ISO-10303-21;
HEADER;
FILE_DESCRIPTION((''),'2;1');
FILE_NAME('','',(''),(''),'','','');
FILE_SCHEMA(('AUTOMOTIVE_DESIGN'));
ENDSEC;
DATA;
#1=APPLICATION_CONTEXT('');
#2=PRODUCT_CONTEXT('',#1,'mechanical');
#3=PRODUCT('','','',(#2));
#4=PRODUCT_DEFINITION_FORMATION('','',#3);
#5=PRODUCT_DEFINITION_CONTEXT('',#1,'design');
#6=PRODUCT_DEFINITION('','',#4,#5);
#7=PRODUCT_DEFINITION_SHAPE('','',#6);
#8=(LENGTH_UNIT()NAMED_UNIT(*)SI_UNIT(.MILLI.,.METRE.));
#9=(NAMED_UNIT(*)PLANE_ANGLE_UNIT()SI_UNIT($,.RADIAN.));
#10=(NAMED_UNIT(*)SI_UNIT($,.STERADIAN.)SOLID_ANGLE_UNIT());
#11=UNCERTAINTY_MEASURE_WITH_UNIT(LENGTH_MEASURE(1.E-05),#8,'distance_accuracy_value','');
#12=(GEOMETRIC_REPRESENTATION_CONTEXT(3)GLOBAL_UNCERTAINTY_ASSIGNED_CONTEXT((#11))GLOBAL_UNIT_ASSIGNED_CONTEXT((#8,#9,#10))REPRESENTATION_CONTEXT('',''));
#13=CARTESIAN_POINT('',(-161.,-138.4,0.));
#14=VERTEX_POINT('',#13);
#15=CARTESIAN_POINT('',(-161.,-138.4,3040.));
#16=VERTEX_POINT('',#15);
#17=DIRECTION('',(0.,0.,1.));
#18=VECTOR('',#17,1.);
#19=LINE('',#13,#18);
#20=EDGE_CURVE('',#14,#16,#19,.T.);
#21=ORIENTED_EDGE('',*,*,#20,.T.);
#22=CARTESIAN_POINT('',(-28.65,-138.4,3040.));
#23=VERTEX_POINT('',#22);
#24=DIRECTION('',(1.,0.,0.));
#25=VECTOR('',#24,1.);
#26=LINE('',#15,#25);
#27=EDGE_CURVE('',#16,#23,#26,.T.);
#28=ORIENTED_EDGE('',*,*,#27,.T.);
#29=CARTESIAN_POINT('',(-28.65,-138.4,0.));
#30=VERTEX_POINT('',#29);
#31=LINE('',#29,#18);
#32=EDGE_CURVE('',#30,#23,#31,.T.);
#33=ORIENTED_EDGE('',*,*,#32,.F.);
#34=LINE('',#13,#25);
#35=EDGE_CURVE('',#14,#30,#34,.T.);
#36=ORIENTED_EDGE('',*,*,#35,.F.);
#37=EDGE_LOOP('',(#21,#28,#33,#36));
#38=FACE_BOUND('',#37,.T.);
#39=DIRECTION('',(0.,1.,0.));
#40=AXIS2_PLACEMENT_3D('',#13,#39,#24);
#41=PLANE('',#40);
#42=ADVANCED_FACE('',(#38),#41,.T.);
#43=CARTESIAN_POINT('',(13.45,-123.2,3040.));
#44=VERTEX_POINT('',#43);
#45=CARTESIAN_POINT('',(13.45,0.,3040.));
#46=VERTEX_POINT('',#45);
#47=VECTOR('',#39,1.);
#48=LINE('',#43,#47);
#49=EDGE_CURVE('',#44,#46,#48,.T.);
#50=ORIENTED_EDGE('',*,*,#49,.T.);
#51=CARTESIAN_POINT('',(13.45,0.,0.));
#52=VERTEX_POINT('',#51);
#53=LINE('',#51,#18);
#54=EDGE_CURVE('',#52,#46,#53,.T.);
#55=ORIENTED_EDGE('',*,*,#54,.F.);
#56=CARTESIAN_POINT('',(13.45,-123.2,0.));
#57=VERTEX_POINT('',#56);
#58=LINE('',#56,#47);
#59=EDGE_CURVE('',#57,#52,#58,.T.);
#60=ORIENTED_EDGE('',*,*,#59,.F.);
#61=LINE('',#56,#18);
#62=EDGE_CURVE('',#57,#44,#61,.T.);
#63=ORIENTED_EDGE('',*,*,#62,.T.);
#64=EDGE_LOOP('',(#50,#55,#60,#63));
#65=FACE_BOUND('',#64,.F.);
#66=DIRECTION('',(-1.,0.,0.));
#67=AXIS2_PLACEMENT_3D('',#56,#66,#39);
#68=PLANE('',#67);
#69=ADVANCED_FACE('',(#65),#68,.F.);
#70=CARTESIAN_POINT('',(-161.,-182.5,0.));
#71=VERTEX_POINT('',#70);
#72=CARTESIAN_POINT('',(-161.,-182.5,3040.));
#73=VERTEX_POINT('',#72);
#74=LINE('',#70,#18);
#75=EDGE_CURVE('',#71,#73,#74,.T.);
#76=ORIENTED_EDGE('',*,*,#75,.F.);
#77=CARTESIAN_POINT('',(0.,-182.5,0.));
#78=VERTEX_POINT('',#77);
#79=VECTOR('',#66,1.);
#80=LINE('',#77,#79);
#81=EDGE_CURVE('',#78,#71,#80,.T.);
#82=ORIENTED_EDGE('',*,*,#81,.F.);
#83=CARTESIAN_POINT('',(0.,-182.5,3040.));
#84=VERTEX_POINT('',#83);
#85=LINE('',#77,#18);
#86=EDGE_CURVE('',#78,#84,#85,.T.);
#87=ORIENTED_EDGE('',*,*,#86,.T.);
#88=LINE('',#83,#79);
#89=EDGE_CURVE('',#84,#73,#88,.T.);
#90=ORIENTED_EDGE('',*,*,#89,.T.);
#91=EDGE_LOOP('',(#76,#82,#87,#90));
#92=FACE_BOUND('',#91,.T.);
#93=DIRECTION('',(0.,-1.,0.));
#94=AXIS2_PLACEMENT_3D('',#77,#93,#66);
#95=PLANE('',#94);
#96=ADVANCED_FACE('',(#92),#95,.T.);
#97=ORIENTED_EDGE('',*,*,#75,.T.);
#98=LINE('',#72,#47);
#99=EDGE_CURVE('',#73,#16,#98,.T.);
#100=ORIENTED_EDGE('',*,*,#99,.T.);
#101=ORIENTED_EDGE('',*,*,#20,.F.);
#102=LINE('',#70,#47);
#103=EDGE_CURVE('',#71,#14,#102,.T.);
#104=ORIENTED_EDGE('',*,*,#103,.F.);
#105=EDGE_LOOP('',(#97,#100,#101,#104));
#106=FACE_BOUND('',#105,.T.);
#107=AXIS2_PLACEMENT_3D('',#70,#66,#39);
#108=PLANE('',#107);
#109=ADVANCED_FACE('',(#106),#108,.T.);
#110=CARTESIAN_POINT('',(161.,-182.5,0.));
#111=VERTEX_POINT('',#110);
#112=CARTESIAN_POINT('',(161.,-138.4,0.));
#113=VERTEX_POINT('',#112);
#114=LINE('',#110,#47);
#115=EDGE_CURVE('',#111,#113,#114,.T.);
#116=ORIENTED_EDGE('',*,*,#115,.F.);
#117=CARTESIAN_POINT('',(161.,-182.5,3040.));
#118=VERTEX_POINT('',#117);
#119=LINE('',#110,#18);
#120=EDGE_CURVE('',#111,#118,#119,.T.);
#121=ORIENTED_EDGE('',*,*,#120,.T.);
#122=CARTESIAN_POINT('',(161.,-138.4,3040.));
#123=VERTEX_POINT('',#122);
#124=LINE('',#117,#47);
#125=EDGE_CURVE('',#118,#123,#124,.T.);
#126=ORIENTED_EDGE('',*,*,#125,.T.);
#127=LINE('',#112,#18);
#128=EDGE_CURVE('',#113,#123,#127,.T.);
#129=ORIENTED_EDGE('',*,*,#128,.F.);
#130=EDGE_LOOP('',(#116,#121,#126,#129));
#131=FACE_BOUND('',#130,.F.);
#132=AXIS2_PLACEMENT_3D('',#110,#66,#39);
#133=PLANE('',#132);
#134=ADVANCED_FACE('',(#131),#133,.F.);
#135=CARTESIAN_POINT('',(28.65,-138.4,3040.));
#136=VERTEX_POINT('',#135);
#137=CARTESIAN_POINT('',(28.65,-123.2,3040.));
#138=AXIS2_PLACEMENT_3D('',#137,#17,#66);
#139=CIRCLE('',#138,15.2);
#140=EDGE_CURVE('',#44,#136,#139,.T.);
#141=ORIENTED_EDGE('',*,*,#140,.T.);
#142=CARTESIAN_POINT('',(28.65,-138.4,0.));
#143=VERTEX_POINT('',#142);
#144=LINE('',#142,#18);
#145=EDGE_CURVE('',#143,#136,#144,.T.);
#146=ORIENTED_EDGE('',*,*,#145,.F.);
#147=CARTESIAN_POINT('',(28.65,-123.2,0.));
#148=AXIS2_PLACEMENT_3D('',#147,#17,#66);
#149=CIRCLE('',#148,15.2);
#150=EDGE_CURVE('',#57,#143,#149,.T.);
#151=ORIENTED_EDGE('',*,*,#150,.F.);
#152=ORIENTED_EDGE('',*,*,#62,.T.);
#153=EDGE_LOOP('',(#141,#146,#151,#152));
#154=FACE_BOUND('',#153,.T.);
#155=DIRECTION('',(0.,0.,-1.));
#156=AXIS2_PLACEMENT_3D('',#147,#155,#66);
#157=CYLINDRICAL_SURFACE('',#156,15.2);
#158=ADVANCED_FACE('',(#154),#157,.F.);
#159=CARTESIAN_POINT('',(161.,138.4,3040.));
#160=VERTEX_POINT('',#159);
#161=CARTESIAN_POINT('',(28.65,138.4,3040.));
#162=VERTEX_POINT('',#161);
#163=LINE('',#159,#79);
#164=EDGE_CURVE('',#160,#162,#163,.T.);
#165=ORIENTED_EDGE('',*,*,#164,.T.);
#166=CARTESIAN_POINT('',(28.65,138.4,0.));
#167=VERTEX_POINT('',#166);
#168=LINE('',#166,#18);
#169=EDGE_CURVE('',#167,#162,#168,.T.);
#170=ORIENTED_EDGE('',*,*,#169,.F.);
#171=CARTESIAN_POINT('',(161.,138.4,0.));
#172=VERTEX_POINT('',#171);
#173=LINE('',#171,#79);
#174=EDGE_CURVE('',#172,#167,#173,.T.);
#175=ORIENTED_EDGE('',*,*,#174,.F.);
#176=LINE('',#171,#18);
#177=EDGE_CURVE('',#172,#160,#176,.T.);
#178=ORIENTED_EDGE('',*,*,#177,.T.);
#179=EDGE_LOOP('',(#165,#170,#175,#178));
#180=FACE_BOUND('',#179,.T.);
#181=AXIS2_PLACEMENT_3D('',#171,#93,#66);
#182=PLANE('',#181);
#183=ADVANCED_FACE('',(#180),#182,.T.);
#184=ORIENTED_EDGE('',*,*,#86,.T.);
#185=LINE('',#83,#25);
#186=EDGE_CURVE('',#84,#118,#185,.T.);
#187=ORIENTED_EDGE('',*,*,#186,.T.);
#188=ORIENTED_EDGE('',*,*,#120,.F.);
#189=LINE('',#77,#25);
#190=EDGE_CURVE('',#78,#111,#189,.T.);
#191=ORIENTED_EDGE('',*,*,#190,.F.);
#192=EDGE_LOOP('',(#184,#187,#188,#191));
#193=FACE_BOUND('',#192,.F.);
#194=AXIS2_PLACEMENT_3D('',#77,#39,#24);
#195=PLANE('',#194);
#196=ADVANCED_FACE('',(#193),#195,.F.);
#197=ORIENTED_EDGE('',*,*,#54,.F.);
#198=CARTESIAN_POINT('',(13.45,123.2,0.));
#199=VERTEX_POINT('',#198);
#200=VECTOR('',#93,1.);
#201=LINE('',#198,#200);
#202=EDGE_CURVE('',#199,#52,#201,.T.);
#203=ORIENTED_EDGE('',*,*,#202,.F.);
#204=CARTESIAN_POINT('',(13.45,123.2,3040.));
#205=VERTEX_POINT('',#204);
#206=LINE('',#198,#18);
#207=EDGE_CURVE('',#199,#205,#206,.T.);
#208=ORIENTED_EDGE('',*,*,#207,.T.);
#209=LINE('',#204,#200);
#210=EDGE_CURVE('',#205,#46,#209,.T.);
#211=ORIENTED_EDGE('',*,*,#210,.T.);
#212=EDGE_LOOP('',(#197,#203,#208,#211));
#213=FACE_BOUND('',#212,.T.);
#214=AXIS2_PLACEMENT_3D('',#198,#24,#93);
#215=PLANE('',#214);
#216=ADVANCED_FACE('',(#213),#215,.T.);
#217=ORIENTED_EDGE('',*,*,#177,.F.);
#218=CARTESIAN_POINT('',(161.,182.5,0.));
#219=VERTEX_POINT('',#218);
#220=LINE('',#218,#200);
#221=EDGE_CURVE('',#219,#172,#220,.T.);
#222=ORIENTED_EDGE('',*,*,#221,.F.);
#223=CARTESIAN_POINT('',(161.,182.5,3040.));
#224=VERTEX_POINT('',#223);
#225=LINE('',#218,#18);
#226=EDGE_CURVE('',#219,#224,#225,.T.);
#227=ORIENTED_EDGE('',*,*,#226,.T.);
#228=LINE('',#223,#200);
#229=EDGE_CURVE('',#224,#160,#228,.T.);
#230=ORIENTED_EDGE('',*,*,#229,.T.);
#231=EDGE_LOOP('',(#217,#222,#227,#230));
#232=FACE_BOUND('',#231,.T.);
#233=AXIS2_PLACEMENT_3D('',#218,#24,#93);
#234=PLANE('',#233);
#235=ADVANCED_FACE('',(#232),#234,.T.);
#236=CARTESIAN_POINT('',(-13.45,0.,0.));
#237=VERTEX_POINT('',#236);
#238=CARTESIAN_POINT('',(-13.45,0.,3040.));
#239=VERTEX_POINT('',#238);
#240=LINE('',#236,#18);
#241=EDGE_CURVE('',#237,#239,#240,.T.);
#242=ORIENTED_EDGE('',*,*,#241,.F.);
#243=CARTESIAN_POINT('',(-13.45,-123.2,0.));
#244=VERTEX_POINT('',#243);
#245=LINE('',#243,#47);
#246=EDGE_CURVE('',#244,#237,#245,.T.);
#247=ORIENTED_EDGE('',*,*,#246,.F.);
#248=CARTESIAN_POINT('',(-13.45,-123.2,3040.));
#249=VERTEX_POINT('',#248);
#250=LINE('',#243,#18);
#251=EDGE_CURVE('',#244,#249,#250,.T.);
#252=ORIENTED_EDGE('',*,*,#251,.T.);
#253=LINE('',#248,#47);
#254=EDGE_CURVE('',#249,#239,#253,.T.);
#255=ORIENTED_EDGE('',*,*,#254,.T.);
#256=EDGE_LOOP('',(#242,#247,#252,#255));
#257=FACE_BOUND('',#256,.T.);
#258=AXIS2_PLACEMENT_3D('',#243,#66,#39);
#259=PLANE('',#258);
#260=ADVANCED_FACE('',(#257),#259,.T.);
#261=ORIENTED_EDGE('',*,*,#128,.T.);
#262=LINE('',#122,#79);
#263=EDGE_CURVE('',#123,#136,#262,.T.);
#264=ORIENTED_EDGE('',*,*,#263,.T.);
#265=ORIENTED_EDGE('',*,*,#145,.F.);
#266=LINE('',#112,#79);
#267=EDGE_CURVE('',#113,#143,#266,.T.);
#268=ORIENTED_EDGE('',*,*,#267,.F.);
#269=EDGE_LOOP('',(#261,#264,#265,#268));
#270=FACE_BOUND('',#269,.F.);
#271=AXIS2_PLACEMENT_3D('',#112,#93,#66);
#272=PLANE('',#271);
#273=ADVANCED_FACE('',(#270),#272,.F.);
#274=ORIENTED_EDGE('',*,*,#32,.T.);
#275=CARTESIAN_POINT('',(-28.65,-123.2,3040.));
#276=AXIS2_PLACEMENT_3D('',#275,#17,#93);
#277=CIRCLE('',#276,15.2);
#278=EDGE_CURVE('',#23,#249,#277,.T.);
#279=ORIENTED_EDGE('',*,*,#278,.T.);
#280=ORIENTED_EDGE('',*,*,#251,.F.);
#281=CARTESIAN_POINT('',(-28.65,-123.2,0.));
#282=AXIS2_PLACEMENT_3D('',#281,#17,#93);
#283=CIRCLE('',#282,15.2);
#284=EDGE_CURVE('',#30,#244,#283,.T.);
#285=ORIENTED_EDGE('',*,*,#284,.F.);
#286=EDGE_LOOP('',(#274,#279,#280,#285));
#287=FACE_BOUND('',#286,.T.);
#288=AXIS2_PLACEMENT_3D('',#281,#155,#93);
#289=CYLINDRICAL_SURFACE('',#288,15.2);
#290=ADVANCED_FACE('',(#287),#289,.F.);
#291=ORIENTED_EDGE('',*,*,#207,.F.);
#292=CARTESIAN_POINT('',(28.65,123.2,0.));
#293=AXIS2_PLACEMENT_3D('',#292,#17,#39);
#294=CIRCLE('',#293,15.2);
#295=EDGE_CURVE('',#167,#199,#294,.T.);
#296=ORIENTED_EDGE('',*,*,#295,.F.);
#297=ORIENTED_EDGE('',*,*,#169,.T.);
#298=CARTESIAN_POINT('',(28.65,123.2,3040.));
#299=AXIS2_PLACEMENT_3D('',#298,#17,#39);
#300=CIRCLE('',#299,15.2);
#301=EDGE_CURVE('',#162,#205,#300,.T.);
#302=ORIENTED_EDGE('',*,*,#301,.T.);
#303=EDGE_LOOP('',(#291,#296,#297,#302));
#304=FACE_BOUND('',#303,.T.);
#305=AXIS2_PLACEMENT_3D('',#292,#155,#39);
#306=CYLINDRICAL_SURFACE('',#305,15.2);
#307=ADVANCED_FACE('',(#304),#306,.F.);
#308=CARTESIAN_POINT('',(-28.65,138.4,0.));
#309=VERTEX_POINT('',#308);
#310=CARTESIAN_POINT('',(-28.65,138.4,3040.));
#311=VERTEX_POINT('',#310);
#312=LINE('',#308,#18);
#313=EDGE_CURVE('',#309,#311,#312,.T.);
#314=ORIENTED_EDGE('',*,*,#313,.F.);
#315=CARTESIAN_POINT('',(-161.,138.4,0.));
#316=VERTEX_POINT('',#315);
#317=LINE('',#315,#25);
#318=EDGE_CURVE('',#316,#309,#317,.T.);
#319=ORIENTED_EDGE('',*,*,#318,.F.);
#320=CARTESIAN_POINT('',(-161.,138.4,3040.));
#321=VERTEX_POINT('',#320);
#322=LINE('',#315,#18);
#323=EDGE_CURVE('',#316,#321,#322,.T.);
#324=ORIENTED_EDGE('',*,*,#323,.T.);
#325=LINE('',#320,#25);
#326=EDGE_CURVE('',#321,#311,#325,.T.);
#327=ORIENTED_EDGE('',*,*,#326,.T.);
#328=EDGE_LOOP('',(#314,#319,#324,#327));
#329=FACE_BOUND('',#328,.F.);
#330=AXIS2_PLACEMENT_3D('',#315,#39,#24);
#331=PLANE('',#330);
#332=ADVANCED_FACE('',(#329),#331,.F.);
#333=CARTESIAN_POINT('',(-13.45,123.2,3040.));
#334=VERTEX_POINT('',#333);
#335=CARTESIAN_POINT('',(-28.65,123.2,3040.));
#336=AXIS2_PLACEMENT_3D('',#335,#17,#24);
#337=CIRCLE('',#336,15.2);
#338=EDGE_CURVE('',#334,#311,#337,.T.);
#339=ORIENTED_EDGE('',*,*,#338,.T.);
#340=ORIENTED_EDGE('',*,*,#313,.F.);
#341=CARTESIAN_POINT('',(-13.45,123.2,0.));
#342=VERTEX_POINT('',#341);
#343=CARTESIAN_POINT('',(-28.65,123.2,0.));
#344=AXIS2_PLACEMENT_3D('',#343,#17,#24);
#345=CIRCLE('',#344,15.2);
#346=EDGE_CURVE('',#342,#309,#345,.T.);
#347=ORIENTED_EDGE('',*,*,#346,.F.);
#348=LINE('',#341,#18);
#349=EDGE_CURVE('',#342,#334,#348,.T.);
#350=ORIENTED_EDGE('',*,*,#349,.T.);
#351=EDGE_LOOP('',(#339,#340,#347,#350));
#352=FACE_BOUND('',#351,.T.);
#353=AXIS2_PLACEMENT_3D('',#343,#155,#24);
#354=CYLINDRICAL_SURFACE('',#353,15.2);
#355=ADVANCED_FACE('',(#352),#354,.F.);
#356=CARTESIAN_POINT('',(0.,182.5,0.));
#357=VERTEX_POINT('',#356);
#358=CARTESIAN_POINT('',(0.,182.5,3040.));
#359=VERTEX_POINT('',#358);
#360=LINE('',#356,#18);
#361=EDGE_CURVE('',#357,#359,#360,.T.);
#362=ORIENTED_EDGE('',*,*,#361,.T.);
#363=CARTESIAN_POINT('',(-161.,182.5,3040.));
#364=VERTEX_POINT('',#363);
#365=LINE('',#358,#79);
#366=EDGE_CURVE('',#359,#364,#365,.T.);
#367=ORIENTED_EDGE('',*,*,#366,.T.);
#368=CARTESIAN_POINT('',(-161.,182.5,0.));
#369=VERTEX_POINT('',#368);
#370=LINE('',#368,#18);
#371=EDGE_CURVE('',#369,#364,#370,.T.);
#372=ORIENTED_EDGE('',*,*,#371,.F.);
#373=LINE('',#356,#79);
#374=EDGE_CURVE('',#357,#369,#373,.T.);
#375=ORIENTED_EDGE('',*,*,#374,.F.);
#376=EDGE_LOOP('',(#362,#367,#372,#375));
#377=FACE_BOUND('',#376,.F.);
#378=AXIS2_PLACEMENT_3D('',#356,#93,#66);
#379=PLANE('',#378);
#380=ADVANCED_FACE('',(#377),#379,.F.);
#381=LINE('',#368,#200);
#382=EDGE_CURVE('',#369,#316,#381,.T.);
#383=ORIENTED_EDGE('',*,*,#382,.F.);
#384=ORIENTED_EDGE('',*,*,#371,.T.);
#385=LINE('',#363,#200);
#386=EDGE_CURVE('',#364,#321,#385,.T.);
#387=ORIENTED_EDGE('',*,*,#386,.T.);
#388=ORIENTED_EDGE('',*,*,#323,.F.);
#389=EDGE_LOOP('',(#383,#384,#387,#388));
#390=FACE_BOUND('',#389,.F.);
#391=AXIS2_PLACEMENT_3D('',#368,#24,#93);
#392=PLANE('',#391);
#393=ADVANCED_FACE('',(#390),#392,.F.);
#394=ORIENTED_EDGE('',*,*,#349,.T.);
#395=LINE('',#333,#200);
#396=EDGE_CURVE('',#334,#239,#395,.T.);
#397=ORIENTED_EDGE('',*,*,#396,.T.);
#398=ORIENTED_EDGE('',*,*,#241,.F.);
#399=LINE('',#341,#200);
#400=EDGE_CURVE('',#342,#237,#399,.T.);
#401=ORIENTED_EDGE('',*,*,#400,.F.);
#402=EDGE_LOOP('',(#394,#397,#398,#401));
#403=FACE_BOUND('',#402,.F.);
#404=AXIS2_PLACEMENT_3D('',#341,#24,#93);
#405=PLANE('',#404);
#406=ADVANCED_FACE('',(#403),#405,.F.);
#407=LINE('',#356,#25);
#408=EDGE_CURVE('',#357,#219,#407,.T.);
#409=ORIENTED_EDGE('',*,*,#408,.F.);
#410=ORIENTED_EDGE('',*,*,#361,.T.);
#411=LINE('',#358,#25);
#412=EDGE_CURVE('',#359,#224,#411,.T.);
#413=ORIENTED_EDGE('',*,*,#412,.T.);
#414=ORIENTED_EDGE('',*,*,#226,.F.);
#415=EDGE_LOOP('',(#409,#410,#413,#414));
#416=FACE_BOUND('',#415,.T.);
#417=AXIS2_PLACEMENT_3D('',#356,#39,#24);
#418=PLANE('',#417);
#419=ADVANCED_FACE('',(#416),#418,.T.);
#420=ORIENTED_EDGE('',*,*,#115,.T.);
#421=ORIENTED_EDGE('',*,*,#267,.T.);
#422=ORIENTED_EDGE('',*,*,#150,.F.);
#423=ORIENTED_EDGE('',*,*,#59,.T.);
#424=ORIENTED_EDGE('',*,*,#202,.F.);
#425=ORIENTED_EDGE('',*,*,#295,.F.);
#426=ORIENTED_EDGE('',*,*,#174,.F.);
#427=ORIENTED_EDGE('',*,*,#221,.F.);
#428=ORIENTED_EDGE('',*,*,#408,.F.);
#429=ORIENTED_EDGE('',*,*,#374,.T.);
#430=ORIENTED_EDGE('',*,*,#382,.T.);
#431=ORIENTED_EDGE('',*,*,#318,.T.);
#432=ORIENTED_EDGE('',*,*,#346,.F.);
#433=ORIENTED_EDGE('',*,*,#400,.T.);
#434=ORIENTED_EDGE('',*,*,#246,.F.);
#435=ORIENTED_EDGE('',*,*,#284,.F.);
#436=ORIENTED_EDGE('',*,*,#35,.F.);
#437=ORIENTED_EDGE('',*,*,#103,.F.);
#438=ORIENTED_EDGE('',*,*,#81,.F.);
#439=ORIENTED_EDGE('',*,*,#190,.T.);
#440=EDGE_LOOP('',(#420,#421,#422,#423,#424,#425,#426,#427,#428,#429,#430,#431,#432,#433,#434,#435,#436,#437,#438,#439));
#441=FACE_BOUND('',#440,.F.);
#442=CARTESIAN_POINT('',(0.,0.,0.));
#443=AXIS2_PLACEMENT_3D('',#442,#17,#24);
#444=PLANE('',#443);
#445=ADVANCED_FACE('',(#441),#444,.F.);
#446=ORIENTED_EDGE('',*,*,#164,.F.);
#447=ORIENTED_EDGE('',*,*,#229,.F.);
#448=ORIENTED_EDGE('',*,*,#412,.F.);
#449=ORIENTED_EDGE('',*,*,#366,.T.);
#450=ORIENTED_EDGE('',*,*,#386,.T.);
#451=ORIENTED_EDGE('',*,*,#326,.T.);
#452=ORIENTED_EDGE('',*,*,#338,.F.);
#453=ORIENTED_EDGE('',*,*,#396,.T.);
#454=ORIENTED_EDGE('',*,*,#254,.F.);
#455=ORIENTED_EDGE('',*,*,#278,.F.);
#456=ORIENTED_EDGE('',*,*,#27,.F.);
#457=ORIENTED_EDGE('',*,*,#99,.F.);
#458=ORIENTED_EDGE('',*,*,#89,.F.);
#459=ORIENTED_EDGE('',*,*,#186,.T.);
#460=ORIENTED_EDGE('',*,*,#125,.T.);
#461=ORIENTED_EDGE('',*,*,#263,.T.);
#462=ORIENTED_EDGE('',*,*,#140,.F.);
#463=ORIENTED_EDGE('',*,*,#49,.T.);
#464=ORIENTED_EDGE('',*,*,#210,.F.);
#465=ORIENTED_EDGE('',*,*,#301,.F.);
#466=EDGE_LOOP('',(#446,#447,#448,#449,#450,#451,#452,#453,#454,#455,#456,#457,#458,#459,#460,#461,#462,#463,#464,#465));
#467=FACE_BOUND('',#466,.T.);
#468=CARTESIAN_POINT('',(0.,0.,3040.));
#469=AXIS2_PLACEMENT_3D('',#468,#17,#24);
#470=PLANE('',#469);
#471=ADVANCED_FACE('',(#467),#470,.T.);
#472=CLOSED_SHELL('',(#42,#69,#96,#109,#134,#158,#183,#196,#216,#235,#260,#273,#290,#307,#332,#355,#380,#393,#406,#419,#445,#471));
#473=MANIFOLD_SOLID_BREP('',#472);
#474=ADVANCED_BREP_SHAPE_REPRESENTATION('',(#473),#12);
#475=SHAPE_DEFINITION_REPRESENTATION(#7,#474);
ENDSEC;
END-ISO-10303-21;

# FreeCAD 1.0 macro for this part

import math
import FreeCAD as App
import Part
import Sketcher

V = App.Vector
Q = App.Units.Quantity

doc = App.newDocument("Part")
body = doc.addObject("PartDesign::Body", "Body")

# Sketch on XY plane
sketch1 = doc.addObject("Sketcher::SketchObject", "Sketch")
body.addObject(sketch1)
sketch1.AttachmentSupport = (doc.XY_Plane, [""])
sketch1.MapMode = "FlatFace"
sketch1.addGeometry([
    Part.LineSegment(V(-161, -138.4, 0), V(-161, -182.5, 0)),  # 0
    Part.LineSegment(V(-161, -182.5, 0), V(161, -182.5, 0)),  # 1
    Part.LineSegment(V(161, -182.5, 0), V(161, -138.4, 0)),  # 2
    Part.LineSegment(V(161, -138.4, 0), V(28.65, -138.4, 0)),  # 3
    Part.ArcOfCircle(Part.Circle(V(28.65, -123.2, 0), V(0, 0, 1), 15.2), math.radians(180), math.radians(270)),  # 4
    Part.LineSegment(V(13.45, -123.2, 0), V(13.45, 123.2, 0)),  # 5
    Part.ArcOfCircle(Part.Circle(V(28.65, 123.2, 0), V(0, 0, 1), 15.2), math.radians(90), math.radians(180)),  # 6
    Part.LineSegment(V(28.65, 138.4, 0), V(161, 138.4, 0)),  # 7
    Part.LineSegment(V(161, 138.4, 0), V(161, 182.5, 0)),  # 8
    Part.LineSegment(V(161, 182.5, 0), V(-161, 182.5, 0)),  # 9
    Part.LineSegment(V(-161, 182.5, 0), V(-161, 138.4, 0)),  # 10
    Part.LineSegment(V(-161, 138.4, 0), V(-28.65, 138.4, 0)),  # 11
    Part.ArcOfCircle(Part.Circle(V(-28.65, 123.2, 0), V(0, 0, 1), 15.2), math.radians(0), math.radians(90)),  # 12
    Part.LineSegment(V(-13.45, 123.2, 0), V(-13.45, -123.2, 0)),  # 13
    Part.ArcOfCircle(Part.Circle(V(-28.65, -123.2, 0), V(0, 0, 1), 15.2), math.radians(-90), math.radians(0)),  # 14
    Part.LineSegment(V(-28.65, -138.4, 0), V(-161, -138.4, 0)),  # 15
], False)
sketch1.addConstraint([
    Sketcher.Constraint("Coincident", 0, 2, 1, 1),
    Sketcher.Constraint("Coincident", 1, 2, 2, 1),
    Sketcher.Constraint("Coincident", 2, 2, 3, 1),
    Sketcher.Constraint("Tangent", 3, 2, 4, 2),
    Sketcher.Constraint("Tangent", 4, 1, 5, 1),
    Sketcher.Constraint("Tangent", 5, 2, 6, 2),
    Sketcher.Constraint("Tangent", 6, 1, 7, 1),
    Sketcher.Constraint("Coincident", 7, 2, 8, 1),
    Sketcher.Constraint("Coincident", 8, 2, 9, 1),
    Sketcher.Constraint("Coincident", 9, 2, 10, 1),
    Sketcher.Constraint("Coincident", 10, 2, 11, 1),
    Sketcher.Constraint("Tangent", 11, 2, 12, 2),
    Sketcher.Constraint("Tangent", 12, 1, 13, 1),
    Sketcher.Constraint("Tangent", 13, 2, 14, 2),
    Sketcher.Constraint("Tangent", 14, 1, 15, 1),
    Sketcher.Constraint("Coincident", 15, 2, 0, 1),
    Sketcher.Constraint("Vertical", 0),
    Sketcher.Constraint("Horizontal", 1),
    Sketcher.Constraint("Vertical", 2),
    Sketcher.Constraint("Horizontal", 3),
    Sketcher.Constraint("Vertical", 5),
    Sketcher.Constraint("Horizontal", 7),
    Sketcher.Constraint("Vertical", 8),
    Sketcher.Constraint("Horizontal", 9),
    Sketcher.Constraint("Vertical", 10),
    Sketcher.Constraint("Horizontal", 11),
    Sketcher.Constraint("Vertical", 13),
    Sketcher.Constraint("Horizontal", 15),
    Sketcher.Constraint("Equal", 4, 6),
    Sketcher.Constraint("Equal", 6, 12),
    Sketcher.Constraint("Equal", 12, 14),
    Sketcher.Constraint("Symmetric", 4, 3, 12, 3, -1, 1),
    Sketcher.Constraint("Symmetric", 0, 2, 8, 2, -1, 1),
    Sketcher.Constraint("Symmetric", 7, 2, 10, 2, -2),
    Sketcher.Constraint("Symmetric", 2, 2, 15, 2, -2),
    Sketcher.Constraint("Radius", 4, Q("15.2 mm")),
    Sketcher.Constraint("DistanceY", 0, 2, 0, 1, Q("44.1 mm")),
    Sketcher.Constraint("DistanceX", 0, 2, -1, 1, Q("161 mm")),
    Sketcher.Constraint("DistanceY", 0, 2, -1, 1, Q("182.5 mm")),
    Sketcher.Constraint("DistanceX", -1, 1, 4, 1, Q("13.45 mm")),
])
pad1 = doc.addObject("PartDesign::Pad", "Pad")
body.addObject(pad1)
pad1.Profile = sketch1
pad1.Length = 3040

doc.recompute()
